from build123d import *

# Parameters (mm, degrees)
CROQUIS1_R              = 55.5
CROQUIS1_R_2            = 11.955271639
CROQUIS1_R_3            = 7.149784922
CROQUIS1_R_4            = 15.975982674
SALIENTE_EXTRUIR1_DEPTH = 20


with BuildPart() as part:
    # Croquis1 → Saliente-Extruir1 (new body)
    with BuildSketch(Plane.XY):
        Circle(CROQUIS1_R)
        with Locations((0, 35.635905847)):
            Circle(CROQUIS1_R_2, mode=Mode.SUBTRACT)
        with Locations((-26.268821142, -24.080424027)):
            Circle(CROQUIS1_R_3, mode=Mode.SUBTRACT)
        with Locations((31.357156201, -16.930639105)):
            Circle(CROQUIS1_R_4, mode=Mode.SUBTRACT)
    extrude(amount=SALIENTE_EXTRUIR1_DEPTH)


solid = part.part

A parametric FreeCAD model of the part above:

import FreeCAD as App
import Part
import Sketcher

doc = App.newDocument("Part")
params = doc.addObject("Spreadsheet::Sheet", "Params")
for row, (alias, value) in enumerate([
    ("sketch1_diameter", "111 mm"),
    ("pad1_length", "20 mm"),
], start=1):
    params.set(f"A{row}", alias)
    params.set(f"B{row}", "=" + value)
    params.setAlias(f"B{row}", alias)

body = doc.addObject("PartDesign::Body", "Body")

sketch1 = doc.addObject("Sketcher::SketchObject", "Sketch")
body.addObject(sketch1)
sketch1.AttachmentSupport = (doc.XY_Plane, [""])
sketch1.MapMode = "FlatFace"
sketch1.addGeometry([
    Part.Circle(App.Vector(0, 0, 0), App.Vector(0, 0, 1), 55.5),
    Part.Circle(App.Vector(-26.268821, -24.080424, 0), App.Vector(0, 0, 1), 7.149785),
    Part.Circle(App.Vector(31.357156, -16.930639, 0), App.Vector(0, 0, 1), 15.975983),
    Part.Circle(App.Vector(0, 35.635906, 0), App.Vector(0, 0, 1), 11.955272),
], False)
sketch1.addConstraint([
    Sketcher.Constraint("Coincident", 0, 3, -1, 1),
    Sketcher.Constraint("PointOnObject", 3, 3, -2),
    Sketcher.Constraint("Diameter", 0, 111.0),
    Sketcher.Constraint("Diameter", 1, 14.29957),
    Sketcher.Constraint("Diameter", 2, 31.951965),
    Sketcher.Constraint("Diameter", 3, 23.910543),
    Sketcher.Constraint("DistanceX", 1, 3, -1, 1, 26.268821),
    Sketcher.Constraint("DistanceY", 2, 3, -1, 1, 16.930639),
    Sketcher.Constraint("DistanceY", 1, 3, 3, 3, 59.71633),
    Sketcher.Constraint("DistanceY", 1, 3, -1, 1, 24.080424),
    Sketcher.Constraint("DistanceX", -1, 1, 2, 3, 31.357156),
])
sketch1.setExpression("Constraints[2]", "Params.sketch1_diameter")
pad1 = doc.addObject("PartDesign::Pad", "Pad")
body.addObject(pad1)
pad1.Profile = sketch1
pad1.setExpression("Length", "Params.pad1_length")

doc.recompute()
